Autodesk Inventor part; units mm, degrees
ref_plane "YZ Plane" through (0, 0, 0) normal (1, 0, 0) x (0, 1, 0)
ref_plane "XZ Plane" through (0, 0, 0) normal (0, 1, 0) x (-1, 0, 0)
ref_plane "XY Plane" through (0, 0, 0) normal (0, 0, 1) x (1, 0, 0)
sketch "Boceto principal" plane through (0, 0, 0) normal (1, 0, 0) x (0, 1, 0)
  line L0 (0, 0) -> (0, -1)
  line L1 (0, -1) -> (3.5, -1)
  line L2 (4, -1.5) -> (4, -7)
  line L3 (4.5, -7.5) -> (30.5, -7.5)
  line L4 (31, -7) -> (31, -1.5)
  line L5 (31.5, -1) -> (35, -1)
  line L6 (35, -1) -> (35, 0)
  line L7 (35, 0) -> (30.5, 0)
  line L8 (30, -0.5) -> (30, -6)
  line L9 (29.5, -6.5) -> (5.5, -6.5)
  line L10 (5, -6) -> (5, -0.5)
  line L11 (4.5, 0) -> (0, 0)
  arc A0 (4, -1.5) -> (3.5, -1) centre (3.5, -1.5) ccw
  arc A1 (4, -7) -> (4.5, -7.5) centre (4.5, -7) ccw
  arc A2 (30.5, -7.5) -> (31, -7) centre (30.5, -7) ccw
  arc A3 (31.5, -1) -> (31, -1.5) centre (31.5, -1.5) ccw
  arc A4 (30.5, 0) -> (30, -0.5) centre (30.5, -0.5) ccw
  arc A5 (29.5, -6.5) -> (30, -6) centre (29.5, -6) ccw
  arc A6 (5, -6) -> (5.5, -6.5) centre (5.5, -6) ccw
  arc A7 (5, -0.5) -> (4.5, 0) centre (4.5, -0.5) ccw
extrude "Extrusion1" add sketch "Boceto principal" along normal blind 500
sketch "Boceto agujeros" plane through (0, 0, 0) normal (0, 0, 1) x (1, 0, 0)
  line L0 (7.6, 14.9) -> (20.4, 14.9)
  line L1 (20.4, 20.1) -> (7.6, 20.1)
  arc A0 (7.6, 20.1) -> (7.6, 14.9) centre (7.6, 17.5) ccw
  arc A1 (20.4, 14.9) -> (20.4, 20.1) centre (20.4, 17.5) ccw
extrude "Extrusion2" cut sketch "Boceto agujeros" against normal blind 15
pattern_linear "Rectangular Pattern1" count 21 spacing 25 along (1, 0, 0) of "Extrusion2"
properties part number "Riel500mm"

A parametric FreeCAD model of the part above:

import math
import FreeCAD as App
import Part
import Sketcher
from FreeCAD import Vector

doc = App.newDocument("Part")
body = doc.addObject("PartDesign::Body", "Body")

sketch1 = body.newObject("Sketcher::SketchObject", "Sketch")
sketch1.AttachmentSupport = (doc.getObject("YZ_Plane"), [""])
sketch1.MapMode = "FlatFace"
sketch1.addGeometry([
    Part.LineSegment(Vector(4.5, 0, 0), Vector(0, 0, 0)),
    Part.LineSegment(Vector(0, 0, 0), Vector(0, -1, 0)),
    Part.LineSegment(Vector(0, -1, 0), Vector(3.5, -1, 0)),
    Part.ArcOfCircle(Part.Circle(Vector(3.5, -1.5, 0), Vector(0, 0, 1), 0.5), math.radians(0), math.radians(90)),
    Part.LineSegment(Vector(4, -1.5, 0), Vector(4, -7, 0)),
    Part.ArcOfCircle(Part.Circle(Vector(4.5, -7, 0), Vector(0, 0, 1), 0.5), math.radians(180), math.radians(270)),
    Part.LineSegment(Vector(4.5, -7.5, 0), Vector(30.5, -7.5, 0)),
    Part.ArcOfCircle(Part.Circle(Vector(30.5, -7, 0), Vector(0, 0, 1), 0.5), math.radians(-90), math.radians(0)),
    Part.LineSegment(Vector(31, -7, 0), Vector(31, -1.5, 0)),
    Part.ArcOfCircle(Part.Circle(Vector(31.5, -1.5, 0), Vector(0, 0, 1), 0.5), math.radians(90), math.radians(180)),
    Part.LineSegment(Vector(31.5, -1, 0), Vector(35, -1, 0)),
    Part.LineSegment(Vector(35, -1, 0), Vector(35, 0, 0)),
    Part.LineSegment(Vector(35, 0, 0), Vector(30.5, 0, 0)),
    Part.ArcOfCircle(Part.Circle(Vector(30.5, -0.5, 0), Vector(0, 0, 1), 0.5), math.radians(90), math.radians(180)),
    Part.LineSegment(Vector(30, -0.5, 0), Vector(30, -6, 0)),
    Part.ArcOfCircle(Part.Circle(Vector(29.5, -6, 0), Vector(0, 0, 1), 0.5), math.radians(-90), math.radians(0)),
    Part.LineSegment(Vector(29.5, -6.5, 0), Vector(5.5, -6.5, 0)),
    Part.ArcOfCircle(Part.Circle(Vector(5.5, -6, 0), Vector(0, 0, 1), 0.5), math.radians(180), math.radians(270)),
    Part.LineSegment(Vector(5, -6, 0), Vector(5, -0.5, 0)),
    Part.ArcOfCircle(Part.Circle(Vector(4.5, -0.5, 0), Vector(0, 0, 1), 0.5), math.radians(0), math.radians(90)),
], False)
sketch1.addConstraint([
    Sketcher.Constraint("Coincident", 0, 2, 1, 1),
    Sketcher.Constraint("Coincident", 1, 2, 2, 1),
    Sketcher.Constraint("Tangent", 2, 2, 3, 2),
    Sketcher.Constraint("Tangent", 3, 1, 4, 1),
    Sketcher.Constraint("Tangent", 4, 2, 5, 1),
    Sketcher.Constraint("Tangent", 5, 2, 6, 1),
    Sketcher.Constraint("Tangent", 6, 2, 7, 1),
    Sketcher.Constraint("Tangent", 7, 2, 8, 1),
    Sketcher.Constraint("Tangent", 8, 2, 9, 2),
    Sketcher.Constraint("Tangent", 9, 1, 10, 1),
    Sketcher.Constraint("Coincident", 10, 2, 11, 1),
    Sketcher.Constraint("Coincident", 11, 2, 12, 1),
    Sketcher.Constraint("Tangent", 12, 2, 13, 1),
    Sketcher.Constraint("Tangent", 13, 2, 14, 1),
    Sketcher.Constraint("Tangent", 14, 2, 15, 2),
    Sketcher.Constraint("Tangent", 15, 1, 16, 1),
    Sketcher.Constraint("Tangent", 16, 2, 17, 2),
    Sketcher.Constraint("Tangent", 17, 1, 18, 1),
    Sketcher.Constraint("Tangent", 18, 2, 19, 1),
    Sketcher.Constraint("Tangent", 19, 2, 0, 1),
    Sketcher.Constraint("Horizontal", 0),
    Sketcher.Constraint("Vertical", 1),
    Sketcher.Constraint("Horizontal", 2),
    Sketcher.Constraint("Vertical", 4),
    Sketcher.Constraint("Horizontal", 6),
    Sketcher.Constraint("Vertical", 8),
    Sketcher.Constraint("Horizontal", 10),
    Sketcher.Constraint("Vertical", 11),
    Sketcher.Constraint("Horizontal", 12),
    Sketcher.Constraint("Vertical", 14),
    Sketcher.Constraint("Horizontal", 16),
    Sketcher.Constraint("Vertical", 18),
    Sketcher.Constraint("Coincident", 0, 2, -1, 1),
    Sketcher.Constraint("Equal", 3, 5),
    Sketcher.Constraint("Equal", 5, 7),
    Sketcher.Constraint("Equal", 7, 9),
    Sketcher.Constraint("Equal", 9, 13),
    Sketcher.Constraint("Equal", 13, 15),
    Sketcher.Constraint("Equal", 15, 17),
    Sketcher.Constraint("Equal", 17, 19),
    Sketcher.Constraint("PointOnObject", 11, 2, -1),
    Sketcher.Constraint("Horizontal", 3, 3, 9, 3),
    Sketcher.Constraint("Vertical", 7, 3, 13, 3),
    Sketcher.Constraint("Vertical", 5, 3, 19, 3),
    Sketcher.Constraint("Equal", 2, 10),
    Sketcher.Constraint("Equal", 8, 14),
    Sketcher.Constraint("Radius", 3, 0.5),
    Sketcher.Constraint("DistanceX", 6, 1, 6, 2, 26.0),
    Sketcher.Constraint("DistanceY", 1, 2, 1, 1, 1.0),
    Sketcher.Constraint("DistanceX", 0, 2, 0, 1, 4.5),
    Sketcher.Constraint("DistanceY", 4, 2, 4, 1, 5.5),
])
pad1 = body.newObject("PartDesign::Pad", "Pad")
pad1.Profile = sketch1
pad1.Length = 500

sketch2 = body.newObject("Sketcher::SketchObject", "Sketch001")
sketch2.AttachmentSupport = (doc.getObject("XY_Plane"), [""])
sketch2.MapMode = "FlatFace"
sketch2.addGeometry([
    Part.ArcOfCircle(Part.Circle(Vector(7.6, 17.5, 0), Vector(0, 0, 1), 2.6), math.radians(90), math.radians(270)),
    Part.LineSegment(Vector(7.6, 14.9, 0), Vector(20.4, 14.9, 0)),
    Part.ArcOfCircle(Part.Circle(Vector(20.4, 17.5, 0), Vector(0, 0, 1), 2.6), math.radians(-90), math.radians(90)),
    Part.LineSegment(Vector(20.4, 20.1, 0), Vector(7.6, 20.1, 0)),
], False)
sketch2.addConstraint([
    Sketcher.Constraint("Tangent", 0, 2, 1, 1),
    Sketcher.Constraint("Tangent", 1, 2, 2, 1),
    Sketcher.Constraint("Tangent", 2, 2, 3, 1),
    Sketcher.Constraint("Tangent", 3, 2, 0, 1),
    Sketcher.Constraint("Horizontal", 1),
    Sketcher.Constraint("Horizontal", 3),
    Sketcher.Constraint("Radius", 0, 2.6),
    Sketcher.Constraint("DistanceX", 1, 1, 1, 2, 12.8),
    Sketcher.Constraint("DistanceX", -1, 1, 0, 3, 7.6),
    Sketcher.Constraint("DistanceY", -1, 1, 0, 3, 17.5),
])
pocket1 = body.newObject("PartDesign::Pocket", "Pocket")
pocket1.Profile = sketch2
pocket1.Length = 15
doc.recompute()

linearpattern = body.newObject("PartDesign::LinearPattern", "LinearPattern")
linearpattern.Originals = [pocket1]
linearpattern.Direction = (doc.getObject("X_Axis"), [""])
linearpattern.Mode = "offset"
linearpattern.Offset = 25
linearpattern.Occurrences = 21
body.Tip = linearpattern

doc.recompute()
